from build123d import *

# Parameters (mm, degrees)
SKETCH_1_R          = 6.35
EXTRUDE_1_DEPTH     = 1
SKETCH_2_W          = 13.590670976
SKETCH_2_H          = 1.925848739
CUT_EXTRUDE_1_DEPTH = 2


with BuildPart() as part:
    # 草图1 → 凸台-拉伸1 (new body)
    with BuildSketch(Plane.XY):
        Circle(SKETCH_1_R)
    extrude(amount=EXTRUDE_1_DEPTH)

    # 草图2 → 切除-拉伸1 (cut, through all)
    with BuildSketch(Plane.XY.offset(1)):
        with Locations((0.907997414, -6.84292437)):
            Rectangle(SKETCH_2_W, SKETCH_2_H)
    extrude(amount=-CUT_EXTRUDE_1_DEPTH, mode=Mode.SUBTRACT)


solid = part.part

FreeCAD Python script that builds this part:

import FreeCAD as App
import Part
import Sketcher

V = App.Vector

doc = App.newDocument("Part")
body = doc.addObject("PartDesign::Body", "Body")

# Sketch on XY plane
sketch1 = body.newObject("Sketcher::SketchObject", "Sketch")
sketch1.AttachmentSupport = (doc.getObject("XY_Plane"), [""])
sketch1.MapMode = "FlatFace"
sketch1.addGeometry(Part.Circle(V(0, 0, 0), V(0, 0, 1), 6), False)
sketch1.addConstraint(Sketcher.Constraint("Coincident", 0, 3, -1, 1))
sketch1.addConstraint(Sketcher.Constraint("Diameter", 0, 12.7))
pad1 = body.newObject("PartDesign::Pad", "Pad")
pad1.Profile = sketch1
pad1.Length = 1

# Sketch on XY plane
sketch2 = body.newObject("Sketcher::SketchObject", "Sketch001")
sketch2.AttachmentSupport = (doc.getObject("XY_Plane"), [""])
sketch2.MapMode = "FlatFace"
sketch2.AttachmentOffset = App.Placement(V(0, 0, 1), App.Rotation())
sketch2.addGeometry(Part.LineSegment(V(-5.9, -5.9, 0), V(-5.9, -7.8, 0)), False)
sketch2.addGeometry(Part.LineSegment(V(-5.9, -7.8, 0), V(7.7, -7.8, 0)), False)
sketch2.addGeometry(Part.LineSegment(V(7.7, -7.8, 0), V(7.7, -5.9, 0)), False)
sketch2.addGeometry(Part.LineSegment(V(7.7, -5.9, 0), V(-5.9, -5.9, 0)), False)
sketch2.addConstraint(Sketcher.Constraint("Coincident", 0, 2, 1, 1))
sketch2.addConstraint(Sketcher.Constraint("Coincident", 1, 2, 2, 1))
sketch2.addConstraint(Sketcher.Constraint("Coincident", 2, 2, 3, 1))
sketch2.addConstraint(Sketcher.Constraint("Coincident", 3, 2, 0, 1))
sketch2.addConstraint(Sketcher.Constraint("Vertical", 0))
sketch2.addConstraint(Sketcher.Constraint("Horizontal", 1))
sketch2.addConstraint(Sketcher.Constraint("Vertical", 2))
sketch2.addConstraint(Sketcher.Constraint("Horizontal", 3))
sketch2.addConstraint(Sketcher.Constraint("DistanceY", 2, 2, -1, 1, 5.88))
sketch2.addConstraint(Sketcher.Constraint("DistanceX", 1, 1, 1, 2, 13.590671))
sketch2.addConstraint(Sketcher.Constraint("DistanceY", 0, 2, 0, 1, 1.925849))
sketch2.addConstraint(Sketcher.Constraint("DistanceX", 0, 2, -1, 1, 5.887338))
pocket1 = body.newObject("PartDesign::Pocket", "Pocket")
pocket1.Profile = sketch2
pocket1.Type = "ThroughAll"

doc.recompute()
